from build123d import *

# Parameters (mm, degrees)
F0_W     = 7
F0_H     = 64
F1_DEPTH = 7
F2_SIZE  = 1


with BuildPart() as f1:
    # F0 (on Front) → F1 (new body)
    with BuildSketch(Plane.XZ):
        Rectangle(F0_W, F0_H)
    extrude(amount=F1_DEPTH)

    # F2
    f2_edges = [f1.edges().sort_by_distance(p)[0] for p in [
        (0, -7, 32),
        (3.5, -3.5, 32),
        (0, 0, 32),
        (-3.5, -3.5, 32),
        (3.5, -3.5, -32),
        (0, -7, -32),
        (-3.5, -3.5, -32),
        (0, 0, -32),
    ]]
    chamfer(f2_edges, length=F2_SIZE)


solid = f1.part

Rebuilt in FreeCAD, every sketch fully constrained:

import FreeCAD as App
import Part
import Sketcher

V = App.Vector


def edges_at(feature, points):
    """Names of the edges that pass closest to the given points."""
    edges = feature.Shape.Edges
    near = lambda p: min(range(len(edges)), key=lambda i: edges[i].distToShape(Part.Vertex(*p))[0])
    return sorted({f"Edge{near(p) + 1}" for p in points})


def add_polygon(sketch, points):
    """Adds a closed chain of lines whose ends are joined by coincident constraints."""
    first, n = sketch.GeometryCount, len(points)
    for a, b in zip(points, points[1:] + points[:1]):
        sketch.addGeometry(Part.LineSegment(App.Vector(*a, 0), App.Vector(*b, 0)), False)
    for i in range(n):
        sketch.addConstraint(Sketcher.Constraint("Coincident", first + i, 2, first + (i + 1) % n, 1))

doc = App.newDocument("Part")
body = doc.addObject("PartDesign::Body", "Body")

sketch1 = doc.addObject("Sketcher::SketchObject", "Sketch")
body.addObject(sketch1)
sketch1.AttachmentSupport = (doc.XZ_Plane, [""])
sketch1.MapMode = "FlatFace"
add_polygon(sketch1, [(-4, 32), (-4, -32), (4, -32), (4, 32)])
sketch1.addConstraint(Sketcher.Constraint("Vertical", 0))
sketch1.addConstraint(Sketcher.Constraint("Horizontal", 1))
sketch1.addConstraint(Sketcher.Constraint("Vertical", 2))
sketch1.addConstraint(Sketcher.Constraint("Horizontal", 3))
sketch1.addConstraint(Sketcher.Constraint("Symmetric", 0, 2, 2, 2, -1, 1))
sketch1.addConstraint(Sketcher.Constraint("DistanceX", 1, 1, 1, 2, 7.0))
sketch1.addConstraint(Sketcher.Constraint("DistanceY", 0, 2, 0, 1, 64.0))
pad1 = doc.addObject("PartDesign::Pad", "Pad")
body.addObject(pad1)
pad1.Profile = sketch1
pad1.Length = 7
doc.recompute()

chamfer = doc.addObject("PartDesign::Chamfer", "Chamfer")
body.addObject(chamfer)
chamfer.Base = (pad1, edges_at(pad1, [
    (0, -7, 32),
    (3.5, -3.5, 32),
    (0, 0, 32),
    (-3.5, -3.5, 32),
    (3.5, -3.5, -32),
    (0, -7, -32),
    (-3.5, -3.5, -32),
    (0, 0, -32),
]))
chamfer.Size = 1

doc.recompute()
